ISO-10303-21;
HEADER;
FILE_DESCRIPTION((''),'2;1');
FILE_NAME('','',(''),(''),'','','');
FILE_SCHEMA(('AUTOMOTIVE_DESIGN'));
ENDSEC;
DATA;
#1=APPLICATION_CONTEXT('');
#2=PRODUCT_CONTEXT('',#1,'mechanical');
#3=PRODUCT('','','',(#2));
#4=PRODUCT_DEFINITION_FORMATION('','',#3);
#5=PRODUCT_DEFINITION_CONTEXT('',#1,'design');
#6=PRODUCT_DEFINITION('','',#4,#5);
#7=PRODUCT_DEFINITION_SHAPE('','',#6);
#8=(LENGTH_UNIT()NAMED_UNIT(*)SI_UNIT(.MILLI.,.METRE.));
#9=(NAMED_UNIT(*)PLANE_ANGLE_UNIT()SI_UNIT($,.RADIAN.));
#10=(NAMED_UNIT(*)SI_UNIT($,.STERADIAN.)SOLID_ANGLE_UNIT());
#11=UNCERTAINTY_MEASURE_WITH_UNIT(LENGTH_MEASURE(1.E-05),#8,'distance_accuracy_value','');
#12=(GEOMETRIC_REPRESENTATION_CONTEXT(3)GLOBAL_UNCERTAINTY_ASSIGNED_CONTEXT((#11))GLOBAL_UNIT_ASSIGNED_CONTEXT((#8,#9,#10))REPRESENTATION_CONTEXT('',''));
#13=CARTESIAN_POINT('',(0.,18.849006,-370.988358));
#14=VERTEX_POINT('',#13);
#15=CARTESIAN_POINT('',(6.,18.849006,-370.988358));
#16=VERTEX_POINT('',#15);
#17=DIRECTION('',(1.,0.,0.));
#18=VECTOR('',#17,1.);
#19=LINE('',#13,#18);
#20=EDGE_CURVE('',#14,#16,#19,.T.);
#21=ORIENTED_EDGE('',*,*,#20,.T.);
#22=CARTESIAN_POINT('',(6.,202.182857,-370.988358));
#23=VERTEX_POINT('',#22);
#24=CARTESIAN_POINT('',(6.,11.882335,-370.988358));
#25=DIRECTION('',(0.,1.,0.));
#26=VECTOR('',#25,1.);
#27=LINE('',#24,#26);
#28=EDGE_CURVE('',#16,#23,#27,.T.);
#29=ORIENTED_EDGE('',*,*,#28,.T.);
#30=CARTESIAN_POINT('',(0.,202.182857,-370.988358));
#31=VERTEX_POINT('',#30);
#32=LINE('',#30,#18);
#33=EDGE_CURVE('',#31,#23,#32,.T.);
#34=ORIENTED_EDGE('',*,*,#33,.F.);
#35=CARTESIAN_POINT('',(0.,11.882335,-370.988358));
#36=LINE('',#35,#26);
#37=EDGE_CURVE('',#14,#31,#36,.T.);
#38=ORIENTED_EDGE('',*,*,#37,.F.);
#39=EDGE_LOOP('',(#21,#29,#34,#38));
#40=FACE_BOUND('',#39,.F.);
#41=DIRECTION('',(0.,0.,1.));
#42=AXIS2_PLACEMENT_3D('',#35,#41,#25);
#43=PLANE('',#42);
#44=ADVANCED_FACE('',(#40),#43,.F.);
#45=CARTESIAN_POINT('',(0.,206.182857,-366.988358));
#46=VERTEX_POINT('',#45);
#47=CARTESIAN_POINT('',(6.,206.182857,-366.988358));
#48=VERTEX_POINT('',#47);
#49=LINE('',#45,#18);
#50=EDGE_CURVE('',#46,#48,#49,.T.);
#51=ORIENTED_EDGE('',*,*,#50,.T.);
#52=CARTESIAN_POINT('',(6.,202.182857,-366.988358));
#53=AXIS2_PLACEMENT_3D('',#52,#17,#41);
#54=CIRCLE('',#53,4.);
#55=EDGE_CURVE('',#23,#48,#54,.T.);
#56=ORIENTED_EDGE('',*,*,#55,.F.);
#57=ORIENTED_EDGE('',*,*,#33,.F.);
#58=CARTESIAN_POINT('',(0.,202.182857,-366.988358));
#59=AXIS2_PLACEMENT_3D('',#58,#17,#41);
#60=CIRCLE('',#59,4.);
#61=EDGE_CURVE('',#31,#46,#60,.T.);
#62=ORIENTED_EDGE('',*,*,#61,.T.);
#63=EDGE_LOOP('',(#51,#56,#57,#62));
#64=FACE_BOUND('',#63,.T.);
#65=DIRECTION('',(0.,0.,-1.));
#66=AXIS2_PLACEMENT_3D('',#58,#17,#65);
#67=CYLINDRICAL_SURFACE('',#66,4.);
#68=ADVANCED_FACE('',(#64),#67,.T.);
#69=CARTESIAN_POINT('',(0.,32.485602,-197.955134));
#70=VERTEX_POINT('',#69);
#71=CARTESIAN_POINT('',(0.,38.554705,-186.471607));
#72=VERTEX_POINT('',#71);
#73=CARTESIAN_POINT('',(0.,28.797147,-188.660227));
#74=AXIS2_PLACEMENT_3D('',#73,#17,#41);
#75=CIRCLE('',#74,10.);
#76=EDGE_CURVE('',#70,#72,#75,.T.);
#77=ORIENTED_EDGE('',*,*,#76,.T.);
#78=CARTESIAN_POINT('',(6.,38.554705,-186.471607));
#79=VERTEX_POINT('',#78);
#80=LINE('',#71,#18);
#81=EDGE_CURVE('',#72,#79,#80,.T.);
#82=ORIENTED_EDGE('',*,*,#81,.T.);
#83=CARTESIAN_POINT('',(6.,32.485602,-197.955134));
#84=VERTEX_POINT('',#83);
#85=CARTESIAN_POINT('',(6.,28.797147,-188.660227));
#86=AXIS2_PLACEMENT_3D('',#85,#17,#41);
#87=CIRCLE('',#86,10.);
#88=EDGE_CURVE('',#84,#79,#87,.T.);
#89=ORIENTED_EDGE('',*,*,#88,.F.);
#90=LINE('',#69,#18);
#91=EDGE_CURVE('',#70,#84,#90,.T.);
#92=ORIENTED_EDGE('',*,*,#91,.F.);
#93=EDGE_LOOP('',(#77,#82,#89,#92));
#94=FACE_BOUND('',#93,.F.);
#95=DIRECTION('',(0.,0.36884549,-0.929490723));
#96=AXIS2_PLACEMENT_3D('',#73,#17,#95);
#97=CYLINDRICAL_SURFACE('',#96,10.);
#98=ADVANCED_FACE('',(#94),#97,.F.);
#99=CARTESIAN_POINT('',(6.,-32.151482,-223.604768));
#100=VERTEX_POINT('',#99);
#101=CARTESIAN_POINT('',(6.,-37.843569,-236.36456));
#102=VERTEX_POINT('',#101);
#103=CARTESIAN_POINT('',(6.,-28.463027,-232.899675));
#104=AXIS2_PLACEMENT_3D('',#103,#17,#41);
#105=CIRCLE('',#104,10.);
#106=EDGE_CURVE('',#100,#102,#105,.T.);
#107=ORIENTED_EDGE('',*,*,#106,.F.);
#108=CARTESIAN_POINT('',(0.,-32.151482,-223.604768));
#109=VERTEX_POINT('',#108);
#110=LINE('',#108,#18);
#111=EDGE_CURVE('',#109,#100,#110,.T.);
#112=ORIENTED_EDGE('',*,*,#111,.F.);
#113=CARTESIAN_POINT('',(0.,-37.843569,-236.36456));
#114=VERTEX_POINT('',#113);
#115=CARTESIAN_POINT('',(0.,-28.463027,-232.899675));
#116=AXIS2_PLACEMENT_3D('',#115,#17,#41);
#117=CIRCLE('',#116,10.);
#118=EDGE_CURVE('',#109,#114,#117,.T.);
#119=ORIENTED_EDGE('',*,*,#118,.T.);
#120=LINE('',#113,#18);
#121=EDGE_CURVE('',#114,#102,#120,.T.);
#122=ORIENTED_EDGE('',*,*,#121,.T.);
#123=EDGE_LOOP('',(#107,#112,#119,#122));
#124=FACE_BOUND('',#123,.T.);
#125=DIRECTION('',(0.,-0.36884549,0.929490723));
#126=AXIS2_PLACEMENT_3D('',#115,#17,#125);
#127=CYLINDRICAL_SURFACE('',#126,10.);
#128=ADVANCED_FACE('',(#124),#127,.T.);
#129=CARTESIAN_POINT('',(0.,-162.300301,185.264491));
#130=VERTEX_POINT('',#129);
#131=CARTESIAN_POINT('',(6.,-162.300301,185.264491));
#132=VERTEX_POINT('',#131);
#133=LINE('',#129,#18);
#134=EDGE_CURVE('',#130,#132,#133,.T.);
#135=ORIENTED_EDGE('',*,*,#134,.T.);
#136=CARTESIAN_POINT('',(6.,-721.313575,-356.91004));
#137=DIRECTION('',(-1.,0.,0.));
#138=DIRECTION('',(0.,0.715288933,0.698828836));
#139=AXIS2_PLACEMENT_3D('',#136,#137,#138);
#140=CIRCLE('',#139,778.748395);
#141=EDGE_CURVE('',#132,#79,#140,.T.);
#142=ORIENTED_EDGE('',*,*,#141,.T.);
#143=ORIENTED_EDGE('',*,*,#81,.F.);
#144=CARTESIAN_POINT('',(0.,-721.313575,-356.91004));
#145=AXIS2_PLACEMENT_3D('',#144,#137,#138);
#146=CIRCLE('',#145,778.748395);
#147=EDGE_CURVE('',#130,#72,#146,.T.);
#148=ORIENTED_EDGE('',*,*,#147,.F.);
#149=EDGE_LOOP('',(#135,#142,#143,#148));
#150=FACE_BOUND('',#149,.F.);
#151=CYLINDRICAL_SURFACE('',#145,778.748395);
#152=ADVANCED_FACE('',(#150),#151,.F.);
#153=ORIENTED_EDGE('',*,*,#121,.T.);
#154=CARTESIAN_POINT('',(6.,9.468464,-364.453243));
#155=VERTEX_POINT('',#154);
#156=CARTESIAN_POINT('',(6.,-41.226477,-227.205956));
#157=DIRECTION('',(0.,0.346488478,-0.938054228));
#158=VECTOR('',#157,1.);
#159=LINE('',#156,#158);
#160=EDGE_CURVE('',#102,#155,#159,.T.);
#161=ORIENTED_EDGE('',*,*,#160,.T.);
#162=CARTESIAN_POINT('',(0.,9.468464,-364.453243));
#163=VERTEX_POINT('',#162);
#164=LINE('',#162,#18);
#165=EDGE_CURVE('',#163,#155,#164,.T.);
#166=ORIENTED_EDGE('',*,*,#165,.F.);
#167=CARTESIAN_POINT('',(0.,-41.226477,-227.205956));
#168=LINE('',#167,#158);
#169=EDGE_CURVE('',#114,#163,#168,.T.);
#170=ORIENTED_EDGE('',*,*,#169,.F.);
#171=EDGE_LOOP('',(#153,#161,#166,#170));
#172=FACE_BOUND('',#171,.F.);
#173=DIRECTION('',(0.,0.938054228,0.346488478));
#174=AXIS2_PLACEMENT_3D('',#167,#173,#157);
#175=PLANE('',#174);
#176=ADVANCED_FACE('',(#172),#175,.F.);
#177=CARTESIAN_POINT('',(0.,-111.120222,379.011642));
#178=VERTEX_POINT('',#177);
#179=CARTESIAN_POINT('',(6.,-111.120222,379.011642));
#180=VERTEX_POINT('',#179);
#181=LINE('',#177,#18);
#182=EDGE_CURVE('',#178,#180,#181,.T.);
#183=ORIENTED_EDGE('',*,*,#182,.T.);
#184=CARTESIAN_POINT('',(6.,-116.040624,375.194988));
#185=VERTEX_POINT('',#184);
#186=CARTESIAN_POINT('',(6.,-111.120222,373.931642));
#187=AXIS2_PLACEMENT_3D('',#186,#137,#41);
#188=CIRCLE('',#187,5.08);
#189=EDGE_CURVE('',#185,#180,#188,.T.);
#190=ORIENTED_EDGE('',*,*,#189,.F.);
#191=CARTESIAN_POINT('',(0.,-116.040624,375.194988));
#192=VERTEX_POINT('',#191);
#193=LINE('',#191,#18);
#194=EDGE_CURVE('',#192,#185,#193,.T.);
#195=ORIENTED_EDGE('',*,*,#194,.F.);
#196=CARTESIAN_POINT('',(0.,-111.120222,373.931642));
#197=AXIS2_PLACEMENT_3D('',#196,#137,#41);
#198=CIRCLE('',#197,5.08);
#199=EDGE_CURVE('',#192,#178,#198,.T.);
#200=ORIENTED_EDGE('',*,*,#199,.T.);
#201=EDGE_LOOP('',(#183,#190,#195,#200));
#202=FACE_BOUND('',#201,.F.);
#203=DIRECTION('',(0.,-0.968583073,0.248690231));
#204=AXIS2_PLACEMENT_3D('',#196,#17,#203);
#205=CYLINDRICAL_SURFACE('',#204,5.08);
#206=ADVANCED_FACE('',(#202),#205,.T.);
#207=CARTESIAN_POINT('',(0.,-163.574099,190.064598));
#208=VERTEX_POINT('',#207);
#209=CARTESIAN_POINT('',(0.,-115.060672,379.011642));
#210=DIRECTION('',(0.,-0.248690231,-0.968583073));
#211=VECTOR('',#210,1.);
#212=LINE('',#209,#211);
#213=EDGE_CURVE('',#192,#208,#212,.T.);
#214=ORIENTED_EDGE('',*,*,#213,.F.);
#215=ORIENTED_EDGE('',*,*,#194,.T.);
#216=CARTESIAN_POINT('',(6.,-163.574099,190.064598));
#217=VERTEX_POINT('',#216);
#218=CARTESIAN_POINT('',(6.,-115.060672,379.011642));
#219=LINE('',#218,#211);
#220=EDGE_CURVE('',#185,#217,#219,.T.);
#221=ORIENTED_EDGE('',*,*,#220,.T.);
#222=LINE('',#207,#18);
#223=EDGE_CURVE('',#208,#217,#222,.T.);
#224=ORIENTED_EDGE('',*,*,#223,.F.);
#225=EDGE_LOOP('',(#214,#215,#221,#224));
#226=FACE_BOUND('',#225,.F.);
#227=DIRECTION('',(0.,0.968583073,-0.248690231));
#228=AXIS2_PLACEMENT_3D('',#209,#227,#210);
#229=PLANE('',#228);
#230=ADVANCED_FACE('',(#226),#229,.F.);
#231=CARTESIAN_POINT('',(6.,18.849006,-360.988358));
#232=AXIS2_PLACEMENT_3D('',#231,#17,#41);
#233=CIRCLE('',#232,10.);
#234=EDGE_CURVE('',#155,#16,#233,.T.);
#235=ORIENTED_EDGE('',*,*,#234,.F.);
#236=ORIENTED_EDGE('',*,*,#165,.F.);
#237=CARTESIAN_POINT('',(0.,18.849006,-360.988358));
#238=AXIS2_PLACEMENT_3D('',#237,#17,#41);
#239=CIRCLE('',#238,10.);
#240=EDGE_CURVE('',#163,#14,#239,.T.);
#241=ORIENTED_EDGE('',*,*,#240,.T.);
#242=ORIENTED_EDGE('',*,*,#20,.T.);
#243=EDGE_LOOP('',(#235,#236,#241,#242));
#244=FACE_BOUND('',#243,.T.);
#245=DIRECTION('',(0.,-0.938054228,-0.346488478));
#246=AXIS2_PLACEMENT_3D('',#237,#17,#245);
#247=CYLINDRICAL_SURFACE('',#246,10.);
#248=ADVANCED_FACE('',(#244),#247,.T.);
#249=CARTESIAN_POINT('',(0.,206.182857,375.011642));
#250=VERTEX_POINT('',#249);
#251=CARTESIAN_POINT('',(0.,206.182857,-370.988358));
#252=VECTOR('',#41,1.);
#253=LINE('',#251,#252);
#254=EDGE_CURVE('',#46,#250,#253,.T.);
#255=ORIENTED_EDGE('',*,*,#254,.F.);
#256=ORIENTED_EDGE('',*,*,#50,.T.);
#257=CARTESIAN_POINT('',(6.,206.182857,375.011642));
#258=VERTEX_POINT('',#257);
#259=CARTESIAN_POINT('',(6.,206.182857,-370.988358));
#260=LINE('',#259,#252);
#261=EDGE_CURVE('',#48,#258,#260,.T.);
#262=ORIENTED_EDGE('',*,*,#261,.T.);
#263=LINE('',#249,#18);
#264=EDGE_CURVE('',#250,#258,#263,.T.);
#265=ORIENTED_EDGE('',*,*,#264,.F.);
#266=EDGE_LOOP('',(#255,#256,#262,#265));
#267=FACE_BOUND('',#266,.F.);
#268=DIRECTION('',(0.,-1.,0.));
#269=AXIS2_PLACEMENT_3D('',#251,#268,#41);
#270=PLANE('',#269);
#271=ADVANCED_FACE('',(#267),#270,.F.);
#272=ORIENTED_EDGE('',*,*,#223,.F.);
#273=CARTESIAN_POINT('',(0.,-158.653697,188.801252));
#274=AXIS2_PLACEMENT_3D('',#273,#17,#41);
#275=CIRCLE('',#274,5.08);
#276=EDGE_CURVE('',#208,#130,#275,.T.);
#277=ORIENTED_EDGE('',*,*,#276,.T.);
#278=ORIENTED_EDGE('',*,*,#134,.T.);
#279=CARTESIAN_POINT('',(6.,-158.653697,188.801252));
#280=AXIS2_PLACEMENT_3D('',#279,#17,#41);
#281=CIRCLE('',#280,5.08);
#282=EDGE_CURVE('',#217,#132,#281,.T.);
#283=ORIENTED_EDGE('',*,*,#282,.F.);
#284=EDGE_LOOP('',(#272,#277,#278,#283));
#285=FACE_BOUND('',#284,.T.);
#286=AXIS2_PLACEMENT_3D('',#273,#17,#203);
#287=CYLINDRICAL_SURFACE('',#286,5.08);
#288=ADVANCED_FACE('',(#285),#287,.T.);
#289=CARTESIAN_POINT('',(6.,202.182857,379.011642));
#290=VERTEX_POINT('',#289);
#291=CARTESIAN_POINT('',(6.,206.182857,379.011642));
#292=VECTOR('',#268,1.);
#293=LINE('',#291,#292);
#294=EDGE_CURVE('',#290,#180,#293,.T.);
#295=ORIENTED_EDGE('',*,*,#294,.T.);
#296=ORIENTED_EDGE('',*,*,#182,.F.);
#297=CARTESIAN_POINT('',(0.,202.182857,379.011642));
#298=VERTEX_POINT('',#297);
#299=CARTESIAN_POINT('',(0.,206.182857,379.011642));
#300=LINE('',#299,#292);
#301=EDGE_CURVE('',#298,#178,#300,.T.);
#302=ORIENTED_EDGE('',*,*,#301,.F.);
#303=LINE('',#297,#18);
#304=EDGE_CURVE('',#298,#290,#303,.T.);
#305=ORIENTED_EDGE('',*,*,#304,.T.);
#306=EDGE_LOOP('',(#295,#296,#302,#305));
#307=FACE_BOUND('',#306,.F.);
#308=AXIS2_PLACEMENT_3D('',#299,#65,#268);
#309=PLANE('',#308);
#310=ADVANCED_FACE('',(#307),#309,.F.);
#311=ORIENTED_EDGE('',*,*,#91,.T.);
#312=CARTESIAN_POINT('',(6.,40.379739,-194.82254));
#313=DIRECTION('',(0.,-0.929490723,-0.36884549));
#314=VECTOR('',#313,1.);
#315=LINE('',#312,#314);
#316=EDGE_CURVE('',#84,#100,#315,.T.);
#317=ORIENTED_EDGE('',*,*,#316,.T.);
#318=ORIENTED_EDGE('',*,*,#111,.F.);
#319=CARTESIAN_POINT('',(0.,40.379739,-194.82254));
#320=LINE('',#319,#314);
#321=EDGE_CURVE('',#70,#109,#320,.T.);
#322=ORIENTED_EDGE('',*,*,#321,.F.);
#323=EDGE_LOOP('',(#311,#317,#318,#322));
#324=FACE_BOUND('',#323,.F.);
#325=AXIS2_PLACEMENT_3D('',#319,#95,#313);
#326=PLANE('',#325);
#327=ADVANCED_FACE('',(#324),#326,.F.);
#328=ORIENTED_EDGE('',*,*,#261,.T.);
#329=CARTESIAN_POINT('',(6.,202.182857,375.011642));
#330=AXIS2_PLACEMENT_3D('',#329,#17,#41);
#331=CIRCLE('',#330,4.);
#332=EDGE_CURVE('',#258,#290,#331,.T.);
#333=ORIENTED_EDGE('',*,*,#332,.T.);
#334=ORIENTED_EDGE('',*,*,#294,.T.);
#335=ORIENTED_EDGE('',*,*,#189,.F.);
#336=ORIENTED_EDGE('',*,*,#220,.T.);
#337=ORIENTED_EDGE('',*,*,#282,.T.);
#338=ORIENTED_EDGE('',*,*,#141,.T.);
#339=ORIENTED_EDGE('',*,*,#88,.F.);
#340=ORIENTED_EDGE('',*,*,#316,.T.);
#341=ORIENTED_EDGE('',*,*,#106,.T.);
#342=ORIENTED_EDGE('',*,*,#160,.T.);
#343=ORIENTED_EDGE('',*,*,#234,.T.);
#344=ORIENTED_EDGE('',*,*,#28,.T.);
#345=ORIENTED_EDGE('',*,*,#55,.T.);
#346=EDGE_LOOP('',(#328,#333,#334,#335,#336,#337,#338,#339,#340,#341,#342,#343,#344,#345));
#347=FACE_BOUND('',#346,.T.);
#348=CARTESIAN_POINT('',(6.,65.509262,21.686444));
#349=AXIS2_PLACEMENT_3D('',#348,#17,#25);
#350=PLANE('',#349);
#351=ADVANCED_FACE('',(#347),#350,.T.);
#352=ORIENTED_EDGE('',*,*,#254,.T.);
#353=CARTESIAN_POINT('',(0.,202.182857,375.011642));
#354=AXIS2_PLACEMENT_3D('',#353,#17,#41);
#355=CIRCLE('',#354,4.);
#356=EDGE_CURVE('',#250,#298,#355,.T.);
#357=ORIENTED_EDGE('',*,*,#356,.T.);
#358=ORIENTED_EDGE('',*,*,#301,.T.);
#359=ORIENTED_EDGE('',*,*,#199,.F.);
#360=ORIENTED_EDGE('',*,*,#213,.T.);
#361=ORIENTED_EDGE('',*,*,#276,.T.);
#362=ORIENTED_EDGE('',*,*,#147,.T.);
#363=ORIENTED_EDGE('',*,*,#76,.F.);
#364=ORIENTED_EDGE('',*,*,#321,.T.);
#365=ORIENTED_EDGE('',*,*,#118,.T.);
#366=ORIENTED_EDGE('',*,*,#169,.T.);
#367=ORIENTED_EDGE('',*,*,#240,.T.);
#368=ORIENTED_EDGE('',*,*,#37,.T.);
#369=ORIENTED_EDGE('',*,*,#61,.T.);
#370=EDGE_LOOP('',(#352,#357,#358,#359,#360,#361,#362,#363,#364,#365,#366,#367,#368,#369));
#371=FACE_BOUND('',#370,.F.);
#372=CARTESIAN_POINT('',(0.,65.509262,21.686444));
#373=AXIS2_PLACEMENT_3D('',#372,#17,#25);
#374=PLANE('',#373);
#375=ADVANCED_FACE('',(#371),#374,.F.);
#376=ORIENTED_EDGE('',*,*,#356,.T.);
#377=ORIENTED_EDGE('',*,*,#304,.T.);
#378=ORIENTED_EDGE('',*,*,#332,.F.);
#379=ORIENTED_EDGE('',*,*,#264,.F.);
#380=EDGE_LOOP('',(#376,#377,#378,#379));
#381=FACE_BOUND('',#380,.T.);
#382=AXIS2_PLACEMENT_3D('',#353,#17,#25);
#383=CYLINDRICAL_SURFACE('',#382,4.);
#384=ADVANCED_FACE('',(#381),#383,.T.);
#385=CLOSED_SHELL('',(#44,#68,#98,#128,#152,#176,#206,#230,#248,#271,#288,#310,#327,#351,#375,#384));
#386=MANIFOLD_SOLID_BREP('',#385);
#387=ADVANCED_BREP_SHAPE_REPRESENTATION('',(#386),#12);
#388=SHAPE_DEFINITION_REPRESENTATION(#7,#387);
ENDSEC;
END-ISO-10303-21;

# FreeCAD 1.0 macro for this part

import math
import FreeCAD as App
import Part
import Sketcher
from FreeCAD import Vector


def edges_at(feature, points):
    """Names of the edges that pass closest to the given points."""
    edges = feature.Shape.Edges
    near = lambda p: min(range(len(edges)), key=lambda i: edges[i].distToShape(Part.Vertex(*p))[0])
    return sorted({f"Edge{near(p) + 1}" for p in points})

doc = App.newDocument("Part")
body = doc.addObject("PartDesign::Body", "Body")

# Sketch on YZ plane
sketch1 = doc.addObject("Sketcher::SketchObject", "Sketch")
body.addObject(sketch1)
sketch1.AttachmentSupport = (doc.YZ_Plane, [""])
sketch1.MapMode = "FlatFace"
sketch1.addGeometry(Part.LineSegment(Vector(206, -371, 0), Vector(206, 379, 0)), False)
sketch1.addGeometry(Part.LineSegment(Vector(206, 379, 0), Vector(-115, 379, 0)), False)
sketch1.addGeometry(Part.LineSegment(Vector(-115, 379, 0), Vector(-164, 187, 0)), False)
sketch1.addGeometry(Part.ArcOfCircle(Part.Circle(Vector(-721, -357, 0), Vector(0, 0, 1), 779), math.radians(12), math.radians(44)), False)
sketch1.addGeometry(Part.LineSegment(Vector(40, -195, 0), Vector(-41, -227, 0)), False)
sketch1.addGeometry(Part.LineSegment(Vector(-41, -227, 0), Vector(12, -371, 0)), False)
sketch1.addGeometry(Part.LineSegment(Vector(12, -371, 0), Vector(206, -371, 0)), False)
sketch1.addConstraint(Sketcher.Constraint("Coincident", 0, 2, 1, 1))
sketch1.addConstraint(Sketcher.Constraint("Coincident", 1, 2, 2, 1))
sketch1.addConstraint(Sketcher.Constraint("Coincident", 2, 2, 3, 2))
sketch1.addConstraint(Sketcher.Constraint("Coincident", 3, 1, 4, 1))
sketch1.addConstraint(Sketcher.Constraint("Coincident", 4, 2, 5, 1))
sketch1.addConstraint(Sketcher.Constraint("Coincident", 5, 2, 6, 1))
sketch1.addConstraint(Sketcher.Constraint("Coincident", 6, 2, 0, 1))
sketch1.addConstraint(Sketcher.Constraint("Vertical", 0))
sketch1.addConstraint(Sketcher.Constraint("Horizontal", 1))
sketch1.addConstraint(Sketcher.Constraint("Horizontal", 6))
sketch1.addConstraint(Sketcher.Constraint("DistanceY", 0, 1, 0, 2, 750.0))
sketch1.addConstraint(Sketcher.Constraint("Radius", 3, 778.748395))
sketch1.addConstraint(Sketcher.Constraint("DistanceX", 1, 2, 1, 1, 321.243529))
sketch1.addConstraint(Sketcher.Constraint("DistanceX", 6, 1, 6, 2, 194.300522))
sketch1.addConstraint(Sketcher.Constraint("DistanceY", 4, 2, 1, 2, 606.217598))
sketch1.addConstraint(Sketcher.Constraint("DistanceX", 3, 3, 4, 2, 680.087098))
sketch1.addConstraint(Sketcher.Constraint("Distance", 2, 197.928141))
sketch1.addConstraint(Sketcher.Constraint("Distance", 5, 153.277282))
sketch1.addConstraint(Sketcher.Constraint("DistanceY", 3, 3, -1, 1, 356.91004))
sketch1.addConstraint(Sketcher.Constraint("DistanceY", -1, 1, 0, 2, 379.011642))
sketch1.addConstraint(Sketcher.Constraint("DistanceX", 1, 2, -1, 1, 115.060672))
sketch1.addConstraint(Sketcher.Constraint("Distance", 4, 87.796698))
pad1 = doc.addObject("PartDesign::Pad", "Pad")
body.addObject(pad1)
pad1.Profile = sketch1
pad1.Length = 6
doc.recompute()

fillet = doc.addObject("PartDesign::Fillet", "Fillet")
body.addObject(fillet)
fillet.Base = (pad1, edges_at(pad1, [(3, -41.226, -227.206)]))
fillet.Radius = 10
doc.recompute()

fillet2 = doc.addObject("PartDesign::Fillet", "Fillet001")
body.addObject(fillet2)
fillet2.Base = (fillet, edges_at(fillet, [(3, 40.38, -194.823)]))
fillet2.Radius = 10
doc.recompute()

fillet3 = doc.addObject("PartDesign::Fillet", "Fillet002")
body.addObject(fillet3)
fillet3.Base = (fillet2, edges_at(fillet2, [(3, 11.882, -370.988)]))
fillet3.Radius = 10
doc.recompute()

fillet4 = doc.addObject("PartDesign::Fillet", "Fillet003")
body.addObject(fillet4)
fillet4.Base = (fillet3, edges_at(fillet3, [(3, 206.183, -370.988)]))
fillet4.Radius = 4
doc.recompute()

fillet5 = doc.addObject("PartDesign::Fillet", "Fillet004")
body.addObject(fillet5)
fillet5.Base = (fillet4, edges_at(fillet4, [(3, 206.183, 379.012)]))
fillet5.Radius = 4
doc.recompute()

fillet6 = doc.addObject("PartDesign::Fillet", "Fillet005")
body.addObject(fillet6)
fillet6.Base = (fillet5, edges_at(fillet5, [(3, -164.283, 187.302)]))
fillet6.Radius = 5.08
doc.recompute()

fillet7 = doc.addObject("PartDesign::Fillet", "Fillet006")
body.addObject(fillet7)
fillet7.Base = (fillet6, edges_at(fillet6, [(3, -115.061, 379.012)]))
fillet7.Radius = 5.08

doc.recompute()
